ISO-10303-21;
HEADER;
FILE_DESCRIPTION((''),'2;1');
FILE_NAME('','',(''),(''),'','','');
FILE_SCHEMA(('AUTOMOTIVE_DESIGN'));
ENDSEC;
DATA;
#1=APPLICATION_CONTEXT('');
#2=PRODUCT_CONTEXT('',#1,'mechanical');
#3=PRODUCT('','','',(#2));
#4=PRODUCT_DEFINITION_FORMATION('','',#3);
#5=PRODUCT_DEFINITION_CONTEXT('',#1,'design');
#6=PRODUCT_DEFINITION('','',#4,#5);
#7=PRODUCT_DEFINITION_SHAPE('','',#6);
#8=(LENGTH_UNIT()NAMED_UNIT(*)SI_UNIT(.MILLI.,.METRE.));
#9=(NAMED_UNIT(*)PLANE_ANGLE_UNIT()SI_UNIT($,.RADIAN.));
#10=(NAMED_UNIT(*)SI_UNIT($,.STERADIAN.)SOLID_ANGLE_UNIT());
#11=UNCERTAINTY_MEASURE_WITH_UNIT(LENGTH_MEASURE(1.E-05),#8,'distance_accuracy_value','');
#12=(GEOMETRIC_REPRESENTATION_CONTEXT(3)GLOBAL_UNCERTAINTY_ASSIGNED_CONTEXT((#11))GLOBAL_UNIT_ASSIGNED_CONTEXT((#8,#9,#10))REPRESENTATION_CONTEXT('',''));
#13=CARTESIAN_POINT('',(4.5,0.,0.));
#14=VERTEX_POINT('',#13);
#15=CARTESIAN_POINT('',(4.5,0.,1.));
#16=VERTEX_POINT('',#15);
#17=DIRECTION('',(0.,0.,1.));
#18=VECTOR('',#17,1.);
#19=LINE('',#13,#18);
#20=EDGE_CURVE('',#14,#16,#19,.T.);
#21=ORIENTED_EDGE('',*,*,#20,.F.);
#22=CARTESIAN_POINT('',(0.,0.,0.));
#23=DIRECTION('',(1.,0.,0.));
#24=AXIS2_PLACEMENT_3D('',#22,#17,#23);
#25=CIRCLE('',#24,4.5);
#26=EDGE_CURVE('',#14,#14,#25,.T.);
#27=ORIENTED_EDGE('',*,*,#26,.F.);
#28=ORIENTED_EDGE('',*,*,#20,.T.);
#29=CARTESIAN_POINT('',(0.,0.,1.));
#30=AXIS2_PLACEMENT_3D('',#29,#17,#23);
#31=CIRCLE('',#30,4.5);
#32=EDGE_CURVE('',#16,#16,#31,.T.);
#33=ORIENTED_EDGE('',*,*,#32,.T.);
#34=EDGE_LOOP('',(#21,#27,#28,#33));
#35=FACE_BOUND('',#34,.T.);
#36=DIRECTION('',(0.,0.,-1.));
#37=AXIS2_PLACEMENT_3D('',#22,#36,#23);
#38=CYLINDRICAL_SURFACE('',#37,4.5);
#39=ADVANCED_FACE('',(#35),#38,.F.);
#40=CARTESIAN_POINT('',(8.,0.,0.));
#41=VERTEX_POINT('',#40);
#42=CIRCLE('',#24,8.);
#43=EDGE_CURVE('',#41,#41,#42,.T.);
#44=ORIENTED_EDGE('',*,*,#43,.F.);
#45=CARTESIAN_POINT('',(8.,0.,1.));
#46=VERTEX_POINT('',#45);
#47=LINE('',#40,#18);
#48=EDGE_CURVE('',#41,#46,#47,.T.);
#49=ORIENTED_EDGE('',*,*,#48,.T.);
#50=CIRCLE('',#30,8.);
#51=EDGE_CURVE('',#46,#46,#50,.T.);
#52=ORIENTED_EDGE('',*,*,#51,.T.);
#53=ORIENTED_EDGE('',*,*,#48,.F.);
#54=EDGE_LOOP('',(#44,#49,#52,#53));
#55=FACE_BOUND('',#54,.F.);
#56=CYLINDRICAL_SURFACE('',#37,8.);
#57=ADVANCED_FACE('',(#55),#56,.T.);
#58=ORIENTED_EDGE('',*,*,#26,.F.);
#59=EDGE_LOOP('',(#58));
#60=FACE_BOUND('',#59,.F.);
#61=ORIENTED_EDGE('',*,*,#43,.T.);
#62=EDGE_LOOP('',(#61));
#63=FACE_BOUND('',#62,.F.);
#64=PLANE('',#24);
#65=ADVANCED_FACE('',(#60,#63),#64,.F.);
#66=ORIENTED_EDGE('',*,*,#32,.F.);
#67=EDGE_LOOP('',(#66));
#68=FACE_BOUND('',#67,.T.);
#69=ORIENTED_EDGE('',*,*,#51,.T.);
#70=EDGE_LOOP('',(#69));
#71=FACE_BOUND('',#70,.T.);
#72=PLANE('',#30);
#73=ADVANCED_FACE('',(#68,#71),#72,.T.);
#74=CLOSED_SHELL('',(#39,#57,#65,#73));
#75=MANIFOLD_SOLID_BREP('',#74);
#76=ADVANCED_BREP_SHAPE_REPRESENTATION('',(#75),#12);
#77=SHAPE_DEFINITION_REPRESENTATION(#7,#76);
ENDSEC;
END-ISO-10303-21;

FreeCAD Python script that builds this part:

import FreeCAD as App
import Part
import Sketcher
from FreeCAD import Vector

doc = App.newDocument("Part")
body = doc.addObject("PartDesign::Body", "Body")

# Sketch on XY plane
sketch1 = body.newObject("Sketcher::SketchObject", "Sketch")
sketch1.AttachmentSupport = (doc.getObject("XY_Plane"), [""])
sketch1.MapMode = "FlatFace"
sketch1.addGeometry(Part.Circle(Vector(0, 0, 0), Vector(0, 0, 1), 8), False)
sketch1.addGeometry(Part.Circle(Vector(0, 0, 0), Vector(0, 0, 1), 4.5), False)
sketch1.addConstraint(Sketcher.Constraint("Coincident", 0, 3, -1, 1))
sketch1.addConstraint(Sketcher.Constraint("Coincident", 1, 3, -1, 1))
sketch1.addConstraint(Sketcher.Constraint("Diameter", 0, 16.0))
sketch1.addConstraint(Sketcher.Constraint("Diameter", 1, 9.0))
pad1 = body.newObject("PartDesign::Pad", "Pad")
pad1.Profile = sketch1
pad1.Length = 1

doc.recompute()
